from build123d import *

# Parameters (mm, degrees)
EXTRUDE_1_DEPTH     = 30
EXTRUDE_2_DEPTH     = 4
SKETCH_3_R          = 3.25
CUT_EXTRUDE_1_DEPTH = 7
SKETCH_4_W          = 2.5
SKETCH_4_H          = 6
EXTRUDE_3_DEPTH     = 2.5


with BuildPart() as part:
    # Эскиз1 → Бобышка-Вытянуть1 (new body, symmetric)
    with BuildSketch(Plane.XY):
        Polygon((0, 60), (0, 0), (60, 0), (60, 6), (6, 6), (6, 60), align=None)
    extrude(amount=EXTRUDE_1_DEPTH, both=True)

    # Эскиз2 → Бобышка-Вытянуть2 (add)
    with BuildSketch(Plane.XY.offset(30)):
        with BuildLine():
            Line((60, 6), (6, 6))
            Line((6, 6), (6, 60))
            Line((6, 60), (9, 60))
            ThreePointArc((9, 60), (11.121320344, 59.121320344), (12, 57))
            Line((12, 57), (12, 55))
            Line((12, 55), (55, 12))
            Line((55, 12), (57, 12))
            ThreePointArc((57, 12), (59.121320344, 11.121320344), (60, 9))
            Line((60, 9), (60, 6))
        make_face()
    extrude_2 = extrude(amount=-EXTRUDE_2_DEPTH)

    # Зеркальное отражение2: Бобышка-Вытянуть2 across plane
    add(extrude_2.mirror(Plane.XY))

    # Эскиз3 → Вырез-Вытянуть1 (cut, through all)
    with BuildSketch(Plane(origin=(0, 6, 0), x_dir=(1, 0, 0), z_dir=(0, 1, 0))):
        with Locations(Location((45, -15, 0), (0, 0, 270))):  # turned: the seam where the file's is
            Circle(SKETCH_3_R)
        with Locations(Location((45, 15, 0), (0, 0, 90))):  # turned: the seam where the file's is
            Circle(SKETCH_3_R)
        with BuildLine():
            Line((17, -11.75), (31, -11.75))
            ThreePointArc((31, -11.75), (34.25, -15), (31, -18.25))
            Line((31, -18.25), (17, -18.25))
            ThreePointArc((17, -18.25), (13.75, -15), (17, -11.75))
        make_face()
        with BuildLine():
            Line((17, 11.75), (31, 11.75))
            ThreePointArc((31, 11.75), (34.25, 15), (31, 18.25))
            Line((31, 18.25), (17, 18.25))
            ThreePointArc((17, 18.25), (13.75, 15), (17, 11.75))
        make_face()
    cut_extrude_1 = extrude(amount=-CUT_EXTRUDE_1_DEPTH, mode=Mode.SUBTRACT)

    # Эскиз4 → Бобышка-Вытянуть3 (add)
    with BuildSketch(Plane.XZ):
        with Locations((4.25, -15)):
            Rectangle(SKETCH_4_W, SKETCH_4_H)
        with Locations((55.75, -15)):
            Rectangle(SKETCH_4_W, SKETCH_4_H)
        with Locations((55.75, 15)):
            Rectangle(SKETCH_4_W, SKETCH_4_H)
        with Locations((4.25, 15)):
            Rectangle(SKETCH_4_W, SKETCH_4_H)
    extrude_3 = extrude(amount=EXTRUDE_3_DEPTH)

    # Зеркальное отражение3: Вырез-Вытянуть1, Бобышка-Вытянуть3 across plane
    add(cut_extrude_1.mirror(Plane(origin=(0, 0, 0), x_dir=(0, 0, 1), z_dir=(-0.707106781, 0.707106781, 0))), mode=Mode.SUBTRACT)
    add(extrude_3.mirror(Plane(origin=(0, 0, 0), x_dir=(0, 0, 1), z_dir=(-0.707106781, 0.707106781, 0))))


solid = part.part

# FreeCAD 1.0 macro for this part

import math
import FreeCAD as App
import Part
import Sketcher

V = App.Vector
Q = App.Units.Quantity


def add_polygon(sketch, points):
    """Adds a closed chain of lines whose ends are joined by coincident constraints."""
    first, n = sketch.GeometryCount, len(points)
    for a, b in zip(points, points[1:] + points[:1]):
        sketch.addGeometry(Part.LineSegment(App.Vector(*a, 0), App.Vector(*b, 0)), False)
    for i in range(n):
        sketch.addConstraint(Sketcher.Constraint("Coincident", first + i, 2, first + (i + 1) % n, 1))

doc = App.newDocument("Part")
params = doc.addObject("Spreadsheet::Sheet", "Params")
for row, (alias, value) in enumerate([
    ("sketch1_width", "60 mm"),
    ("sketch1_width2", "54 mm"),
    ("pad1_length", "60 mm"),
    ("sketch2_radius", "3 mm"),
    ("sketch2_width", "54 mm"),
    ("sketch2_width2", "2 mm"),
    ("sketch2_width3", "3 mm"),
    ("pad2_length", "4 mm"),
    ("sketch3_diameter", "6.5 mm"),
    ("sketch3_width", "14 mm"),
    ("sketch4_height", "6 mm"),
    ("sketch4_width", "2.5 mm"),
    ("pad3_length", "2.5 mm"),
], start=1):
    params.set(f"A{row}", alias)
    params.set(f"B{row}", "=" + value)
    params.setAlias(f"B{row}", alias)

body = doc.addObject("PartDesign::Body", "Body")

# Sketch on XY plane
sketch1 = body.newObject("Sketcher::SketchObject", "Sketch")
sketch1.AttachmentSupport = (doc.getObject("XY_Plane"), [""])
sketch1.MapMode = "FlatFace"
add_polygon(sketch1, [(0, 60), (0, 0), (60, 0), (60, 6), (6, 6), (6, 60)])  # lines 0-5
sketch1.addConstraint([
    Sketcher.Constraint("Vertical", 0),
    Sketcher.Constraint("Horizontal", 1),
    Sketcher.Constraint("Vertical", 2),
    Sketcher.Constraint("Horizontal", 3),
    Sketcher.Constraint("Vertical", 4),
    Sketcher.Constraint("Horizontal", 5),
    Sketcher.Constraint("Coincident", 0, 2, -1, 1),
    Sketcher.Constraint("Equal", 1, 0),
    Sketcher.Constraint("Equal", 5, 2),
    Sketcher.Constraint("DistanceX", 1, 1, 1, 2, Q("60 mm")),
    Sketcher.Constraint("DistanceX", 3, 2, 3, 1, Q("54 mm")),
])
sketch1.setExpression("Constraints[15]", "Params.sketch1_width")
sketch1.setExpression("Constraints[16]", "Params.sketch1_width2")
pad1 = body.newObject("PartDesign::Pad", "Pad")
pad1.Profile = sketch1
pad1.setExpression("Length", "Params.pad1_length")
pad1.Midplane = True

# Sketch on XY plane
sketch2 = body.newObject("Sketcher::SketchObject", "Sketch001")
sketch2.AttachmentSupport = (doc.getObject("XY_Plane"), [""])
sketch2.MapMode = "FlatFace"
sketch2.AttachmentOffset = App.Placement(V(0, 0, 30), App.Rotation())
sketch2.addGeometry([
    Part.LineSegment(V(6, 6, 0), V(60, 6, 0)),  # 0
    Part.LineSegment(V(60, 6, 0), V(60, 9, 0)),  # 1
    Part.ArcOfCircle(Part.Circle(V(57, 9, 0), V(0, 0, 1), 3), math.radians(0), math.radians(90)),  # 2
    Part.LineSegment(V(57, 12, 0), V(55, 12, 0)),  # 3
    Part.LineSegment(V(55, 12, 0), V(12, 55, 0)),  # 4
    Part.LineSegment(V(12, 55, 0), V(12, 57, 0)),  # 5
    Part.ArcOfCircle(Part.Circle(V(9, 57, 0), V(0, 0, 1), 3), math.radians(0), math.radians(90)),  # 6
    Part.LineSegment(V(9, 60, 0), V(6, 60, 0)),  # 7
    Part.LineSegment(V(6, 60, 0), V(6, 6, 0)),  # 8
], False)
sketch2.addConstraint([
    Sketcher.Constraint("Coincident", 0, 2, 1, 1),
    Sketcher.Constraint("Tangent", 1, 2, 2, 1),
    Sketcher.Constraint("Tangent", 2, 2, 3, 1),
    Sketcher.Constraint("Coincident", 3, 2, 4, 1),
    Sketcher.Constraint("Coincident", 4, 2, 5, 1),
    Sketcher.Constraint("Tangent", 5, 2, 6, 1),
    Sketcher.Constraint("Tangent", 6, 2, 7, 1),
    Sketcher.Constraint("Coincident", 7, 2, 8, 1),
    Sketcher.Constraint("Coincident", 8, 2, 0, 1),
    Sketcher.Constraint("Horizontal", 0),
    Sketcher.Constraint("Vertical", 1),
    Sketcher.Constraint("Horizontal", 3),
    Sketcher.Constraint("Vertical", 5),
    Sketcher.Constraint("Horizontal", 7),
    Sketcher.Constraint("Vertical", 8),
    Sketcher.Constraint("Equal", 2, 6),
    Sketcher.Constraint("Equal", 7, 1),
    Sketcher.Constraint("Equal", 3, 5),
    Sketcher.Constraint("Equal", 0, 8),
    Sketcher.Constraint("Radius", 2, Q("3 mm")),
    Sketcher.Constraint("DistanceX", 0, 1, 0, 2, Q("54 mm")),
    Sketcher.Constraint("DistanceX", 3, 2, 3, 1, Q("2 mm")),
    Sketcher.Constraint("DistanceX", 7, 2, 7, 1, Q("3 mm")),
    Sketcher.Constraint("DistanceX", -1, 1, 2, 3, Q("57 mm")),
    Sketcher.Constraint("DistanceY", -1, 1, 2, 3, Q("9 mm")),
])
sketch2.setExpression("Constraints[19]", "Params.sketch2_radius")
sketch2.setExpression("Constraints[20]", "Params.sketch2_width")
sketch2.setExpression("Constraints[21]", "Params.sketch2_width2")
sketch2.setExpression("Constraints[22]", "Params.sketch2_width3")
pad2 = body.newObject("PartDesign::Pad", "Pad001")
pad2.Profile = sketch2
pad2.setExpression("Length", "Params.pad2_length")
pad2.Reversed = True
doc.recompute()

mirrored = body.newObject("PartDesign::Mirrored", "Mirrored")
mirrored.Originals = [pad2]
mirrored.MirrorPlane = (doc.getObject("XY_Plane"), [""])
body.Tip = mirrored

# Sketch on XZ plane
sketch3 = body.newObject("Sketcher::SketchObject", "Sketch002")
sketch3.AttachmentSupport = (doc.getObject("XZ_Plane"), [""])
sketch3.MapMode = "FlatFace"
sketch3.AttachmentOffset = App.Placement(V(0, 0, -6), App.Rotation())
sketch3.addGeometry([
    Part.Circle(V(45, 15, 0), V(0, 0, 1), 3.2),  # 0
    Part.Circle(V(45, -15, 0), V(0, 0, 1), 3.2),  # 1
    Part.LineSegment(V(31, 11.8, 0), V(17, 11.8, 0)),  # 2
    Part.ArcOfCircle(Part.Circle(V(17, 15, 0), V(0, 0, 1), 3.2), math.radians(90), math.radians(270)),  # 3
    Part.LineSegment(V(17, 18.2, 0), V(31, 18.2, 0)),  # 4
    Part.ArcOfCircle(Part.Circle(V(31, 15, 0), V(0, 0, 1), 3.2), math.radians(-90), math.radians(90)),  # 5
    Part.LineSegment(V(17, -11.8, 0), V(31, -11.8, 0)),  # 6
    Part.ArcOfCircle(Part.Circle(V(31, -15, 0), V(0, 0, 1), 3.2), math.radians(-90), math.radians(90)),  # 7
    Part.LineSegment(V(31, -18.2, 0), V(17, -18.2, 0)),  # 8
    Part.ArcOfCircle(Part.Circle(V(17, -15, 0), V(0, 0, 1), 3.2), math.radians(90), math.radians(270)),  # 9
], False)
sketch3.addConstraint([
    Sketcher.Constraint("Tangent", 2, 2, 3, 2),
    Sketcher.Constraint("Tangent", 3, 1, 4, 1),
    Sketcher.Constraint("Tangent", 4, 2, 5, 2),
    Sketcher.Constraint("Tangent", 5, 1, 2, 1),
    Sketcher.Constraint("Tangent", 6, 2, 7, 2),
    Sketcher.Constraint("Tangent", 7, 1, 8, 1),
    Sketcher.Constraint("Tangent", 8, 2, 9, 2),
    Sketcher.Constraint("Tangent", 9, 1, 6, 1),
    Sketcher.Constraint("Horizontal", 2),
    Sketcher.Constraint("Horizontal", 4),
    Sketcher.Constraint("Horizontal", 6),
    Sketcher.Constraint("Horizontal", 8),
    Sketcher.Constraint("Equal", 0, 1),
    Sketcher.Constraint("Equal", 1, 3),
    Sketcher.Constraint("Equal", 5, 7),
    Sketcher.Constraint("Symmetric", 0, 3, 1, 3, -1),
    Sketcher.Constraint("Symmetric", 5, 3, 7, 3, -1),
    Sketcher.Constraint("Horizontal", 0, 3, 3, 3),
    Sketcher.Constraint("Vertical", 3, 3, 9, 3),
    Sketcher.Constraint("Diameter", 0, Q("6.5 mm")),
    Sketcher.Constraint("DistanceX", 2, 2, 2, 1, Q("14 mm")),
    Sketcher.Constraint("DistanceX", -1, 1, 0, 3, Q("45 mm")),
    Sketcher.Constraint("DistanceY", -1, 1, 0, 3, Q("15 mm")),
    Sketcher.Constraint("DistanceX", -1, 1, 3, 3, Q("17 mm")),
])
sketch3.setExpression("Constraints[19]", "Params.sketch3_diameter")
sketch3.setExpression("Constraints[20]", "Params.sketch3_width")
pocket1 = body.newObject("PartDesign::Pocket", "Pocket")
pocket1.Profile = sketch3
pocket1.Type = "ThroughAll"
pocket1.Reversed = True

# Sketch on XZ plane
sketch4 = body.newObject("Sketcher::SketchObject", "Sketch003")
sketch4.AttachmentSupport = (doc.getObject("XZ_Plane"), [""])
sketch4.MapMode = "FlatFace"
add_polygon(sketch4, [(3, -12), (3, -18), (5.5, -18), (5.5, -12)])  # lines 0-3
add_polygon(sketch4, [(54.5, -12), (54.5, -18), (57, -18), (57, -12)])  # lines 4-7
add_polygon(sketch4, [(54.5, 18), (54.5, 12), (57, 12), (57, 18)])  # lines 8-11
add_polygon(sketch4, [(3, 18), (3, 12), (5.5, 12), (5.5, 18)])  # lines 12-15
sketch4.addConstraint([
    Sketcher.Constraint("Vertical", 0),
    Sketcher.Constraint("Horizontal", 1),
    Sketcher.Constraint("Vertical", 2),
    Sketcher.Constraint("Horizontal", 3),
    Sketcher.Constraint("Vertical", 4),
    Sketcher.Constraint("Horizontal", 5),
    Sketcher.Constraint("Vertical", 6),
    Sketcher.Constraint("Horizontal", 7),
    Sketcher.Constraint("Vertical", 8),
    Sketcher.Constraint("Horizontal", 9),
    Sketcher.Constraint("Vertical", 10),
    Sketcher.Constraint("Horizontal", 11),
    Sketcher.Constraint("Vertical", 12),
    Sketcher.Constraint("Horizontal", 13),
    Sketcher.Constraint("Vertical", 14),
    Sketcher.Constraint("Horizontal", 15),
    Sketcher.Constraint("Symmetric", 7, 2, 8, 2, -1),
    Sketcher.Constraint("Symmetric", 5, 2, 10, 2, -1),
    Sketcher.Constraint("Symmetric", 3, 2, 12, 2, -1),
    Sketcher.Constraint("Symmetric", 1, 2, 14, 2, -1),
    Sketcher.Constraint("Horizontal", 1, 2, 4, 2),
    Sketcher.Constraint("Horizontal", 3, 2, 6, 2),
    Sketcher.Constraint("Equal", 3, 5),
    Sketcher.Constraint("DistanceY", 0, 2, 0, 1, Q("6 mm")),
    Sketcher.Constraint("DistanceX", 1, 1, 1, 2, Q("2.5 mm")),
    Sketcher.Constraint("DistanceX", -1, 1, 0, 2, Q("3 mm")),
    Sketcher.Constraint("DistanceY", 0, 2, -1, 1, Q("18 mm")),
    Sketcher.Constraint("DistanceX", -1, 1, 5, 2, Q("57 mm")),
])
sketch4.setExpression("Constraints[39]", "Params.sketch4_height")
sketch4.setExpression("Constraints[40]", "Params.sketch4_width")
pad3 = body.newObject("PartDesign::Pad", "Pad002")
pad3.Profile = sketch4
pad3.setExpression("Length", "Params.pad3_length")
doc.recompute()

datumplane = body.newObject("PartDesign::Plane", "DatumPlane")
datumplane.Placement = App.Placement(V(0, 0, 0), App.Rotation(V(0.707106781, 0.707106781, 0), V(0, 0, -1), V(-0.707106781, 0.707106781, 0), "ZXY"))
mirrored2 = body.newObject("PartDesign::Mirrored", "Mirrored001")
mirrored2.Originals = [pocket1, pad3]
mirrored2.MirrorPlane = (datumplane, [""])
body.Tip = mirrored2

doc.recompute()
